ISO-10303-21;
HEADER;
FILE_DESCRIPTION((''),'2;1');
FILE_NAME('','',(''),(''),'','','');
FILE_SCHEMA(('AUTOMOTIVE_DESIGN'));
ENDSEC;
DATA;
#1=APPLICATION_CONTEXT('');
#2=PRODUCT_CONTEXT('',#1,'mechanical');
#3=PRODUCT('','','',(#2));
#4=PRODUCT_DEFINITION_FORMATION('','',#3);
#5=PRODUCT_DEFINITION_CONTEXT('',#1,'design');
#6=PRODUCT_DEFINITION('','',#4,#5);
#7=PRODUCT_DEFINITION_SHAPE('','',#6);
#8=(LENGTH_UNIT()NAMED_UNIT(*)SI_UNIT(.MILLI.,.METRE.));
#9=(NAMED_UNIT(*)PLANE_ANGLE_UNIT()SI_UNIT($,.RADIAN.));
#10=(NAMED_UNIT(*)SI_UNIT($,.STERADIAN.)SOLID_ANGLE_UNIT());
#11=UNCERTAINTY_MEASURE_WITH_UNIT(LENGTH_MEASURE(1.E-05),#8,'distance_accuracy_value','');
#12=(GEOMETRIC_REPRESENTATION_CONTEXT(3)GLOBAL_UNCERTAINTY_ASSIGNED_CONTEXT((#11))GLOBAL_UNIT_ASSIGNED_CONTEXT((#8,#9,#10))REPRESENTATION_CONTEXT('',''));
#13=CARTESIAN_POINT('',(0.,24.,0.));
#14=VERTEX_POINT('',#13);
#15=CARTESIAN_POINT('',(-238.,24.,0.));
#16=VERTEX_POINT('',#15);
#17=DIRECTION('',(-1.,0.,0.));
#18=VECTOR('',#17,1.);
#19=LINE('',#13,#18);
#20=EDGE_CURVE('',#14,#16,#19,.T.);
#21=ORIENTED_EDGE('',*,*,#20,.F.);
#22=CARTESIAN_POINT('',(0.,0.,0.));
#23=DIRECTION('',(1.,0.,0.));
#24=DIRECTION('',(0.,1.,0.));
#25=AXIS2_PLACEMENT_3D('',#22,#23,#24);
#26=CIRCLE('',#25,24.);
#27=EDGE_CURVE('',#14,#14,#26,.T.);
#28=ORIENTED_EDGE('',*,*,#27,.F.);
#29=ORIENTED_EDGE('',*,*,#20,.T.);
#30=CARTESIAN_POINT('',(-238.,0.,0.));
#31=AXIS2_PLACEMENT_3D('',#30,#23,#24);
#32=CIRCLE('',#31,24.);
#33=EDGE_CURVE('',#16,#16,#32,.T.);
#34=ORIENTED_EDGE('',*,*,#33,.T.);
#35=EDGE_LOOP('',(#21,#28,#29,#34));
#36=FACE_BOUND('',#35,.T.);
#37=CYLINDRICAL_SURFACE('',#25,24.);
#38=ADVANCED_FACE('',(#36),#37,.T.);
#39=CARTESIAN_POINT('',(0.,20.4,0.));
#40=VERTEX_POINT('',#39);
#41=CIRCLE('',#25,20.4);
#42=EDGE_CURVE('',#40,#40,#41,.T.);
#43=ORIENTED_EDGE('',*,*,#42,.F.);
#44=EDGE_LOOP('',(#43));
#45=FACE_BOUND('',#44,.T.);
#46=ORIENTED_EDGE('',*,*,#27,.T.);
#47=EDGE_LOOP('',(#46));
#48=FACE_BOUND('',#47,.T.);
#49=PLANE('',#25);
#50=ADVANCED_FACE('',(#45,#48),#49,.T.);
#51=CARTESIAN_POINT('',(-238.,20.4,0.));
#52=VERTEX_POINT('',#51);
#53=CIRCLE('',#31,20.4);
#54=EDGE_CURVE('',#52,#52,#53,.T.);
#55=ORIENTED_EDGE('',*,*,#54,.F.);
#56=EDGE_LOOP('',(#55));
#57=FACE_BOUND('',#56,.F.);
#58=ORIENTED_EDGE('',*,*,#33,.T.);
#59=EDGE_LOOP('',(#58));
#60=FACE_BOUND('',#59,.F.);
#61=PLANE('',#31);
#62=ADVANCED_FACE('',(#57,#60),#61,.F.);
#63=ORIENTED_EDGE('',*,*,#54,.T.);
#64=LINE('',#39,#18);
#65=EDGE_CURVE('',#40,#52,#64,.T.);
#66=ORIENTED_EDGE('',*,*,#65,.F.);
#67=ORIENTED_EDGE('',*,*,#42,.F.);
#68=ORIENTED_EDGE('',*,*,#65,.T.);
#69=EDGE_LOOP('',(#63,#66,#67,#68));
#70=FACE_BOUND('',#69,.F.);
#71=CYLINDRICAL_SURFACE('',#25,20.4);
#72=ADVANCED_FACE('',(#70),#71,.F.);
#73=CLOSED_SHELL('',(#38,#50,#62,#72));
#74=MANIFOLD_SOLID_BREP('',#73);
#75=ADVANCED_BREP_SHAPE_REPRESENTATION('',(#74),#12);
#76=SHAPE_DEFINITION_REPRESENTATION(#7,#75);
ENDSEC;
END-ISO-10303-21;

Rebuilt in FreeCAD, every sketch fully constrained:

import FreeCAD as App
import Part
import Sketcher
from FreeCAD import Vector
Q = App.Units.Quantity

doc = App.newDocument("Part")
body = doc.addObject("PartDesign::Body", "Body")

# Sketch on YZ plane
sketch1 = doc.addObject("Sketcher::SketchObject", "Sketch")
body.addObject(sketch1)
sketch1.AttachmentSupport = (doc.YZ_Plane, [""])
sketch1.MapMode = "FlatFace"
sketch1.addGeometry(Part.Circle(Vector(0, 0, 0), Vector(0, 0, 1), 24), False)
sketch1.addGeometry(Part.Circle(Vector(0, 0, 0), Vector(0, 0, 1), 20), False)
sketch1.addConstraint(Sketcher.Constraint("Coincident", 0, 3, -1, 1))
sketch1.addConstraint(Sketcher.Constraint("Coincident", 1, 3, -1, 1))
sketch1.addConstraint(Sketcher.Constraint("Diameter", 0, Q("48 mm")))
sketch1.addConstraint(Sketcher.Constraint("Diameter", 1, Q("40.8 mm")))
pad1 = doc.addObject("PartDesign::Pad", "Pad")
body.addObject(pad1)
pad1.Profile = sketch1
pad1.Length = 238
pad1.Reversed = True

doc.recompute()
